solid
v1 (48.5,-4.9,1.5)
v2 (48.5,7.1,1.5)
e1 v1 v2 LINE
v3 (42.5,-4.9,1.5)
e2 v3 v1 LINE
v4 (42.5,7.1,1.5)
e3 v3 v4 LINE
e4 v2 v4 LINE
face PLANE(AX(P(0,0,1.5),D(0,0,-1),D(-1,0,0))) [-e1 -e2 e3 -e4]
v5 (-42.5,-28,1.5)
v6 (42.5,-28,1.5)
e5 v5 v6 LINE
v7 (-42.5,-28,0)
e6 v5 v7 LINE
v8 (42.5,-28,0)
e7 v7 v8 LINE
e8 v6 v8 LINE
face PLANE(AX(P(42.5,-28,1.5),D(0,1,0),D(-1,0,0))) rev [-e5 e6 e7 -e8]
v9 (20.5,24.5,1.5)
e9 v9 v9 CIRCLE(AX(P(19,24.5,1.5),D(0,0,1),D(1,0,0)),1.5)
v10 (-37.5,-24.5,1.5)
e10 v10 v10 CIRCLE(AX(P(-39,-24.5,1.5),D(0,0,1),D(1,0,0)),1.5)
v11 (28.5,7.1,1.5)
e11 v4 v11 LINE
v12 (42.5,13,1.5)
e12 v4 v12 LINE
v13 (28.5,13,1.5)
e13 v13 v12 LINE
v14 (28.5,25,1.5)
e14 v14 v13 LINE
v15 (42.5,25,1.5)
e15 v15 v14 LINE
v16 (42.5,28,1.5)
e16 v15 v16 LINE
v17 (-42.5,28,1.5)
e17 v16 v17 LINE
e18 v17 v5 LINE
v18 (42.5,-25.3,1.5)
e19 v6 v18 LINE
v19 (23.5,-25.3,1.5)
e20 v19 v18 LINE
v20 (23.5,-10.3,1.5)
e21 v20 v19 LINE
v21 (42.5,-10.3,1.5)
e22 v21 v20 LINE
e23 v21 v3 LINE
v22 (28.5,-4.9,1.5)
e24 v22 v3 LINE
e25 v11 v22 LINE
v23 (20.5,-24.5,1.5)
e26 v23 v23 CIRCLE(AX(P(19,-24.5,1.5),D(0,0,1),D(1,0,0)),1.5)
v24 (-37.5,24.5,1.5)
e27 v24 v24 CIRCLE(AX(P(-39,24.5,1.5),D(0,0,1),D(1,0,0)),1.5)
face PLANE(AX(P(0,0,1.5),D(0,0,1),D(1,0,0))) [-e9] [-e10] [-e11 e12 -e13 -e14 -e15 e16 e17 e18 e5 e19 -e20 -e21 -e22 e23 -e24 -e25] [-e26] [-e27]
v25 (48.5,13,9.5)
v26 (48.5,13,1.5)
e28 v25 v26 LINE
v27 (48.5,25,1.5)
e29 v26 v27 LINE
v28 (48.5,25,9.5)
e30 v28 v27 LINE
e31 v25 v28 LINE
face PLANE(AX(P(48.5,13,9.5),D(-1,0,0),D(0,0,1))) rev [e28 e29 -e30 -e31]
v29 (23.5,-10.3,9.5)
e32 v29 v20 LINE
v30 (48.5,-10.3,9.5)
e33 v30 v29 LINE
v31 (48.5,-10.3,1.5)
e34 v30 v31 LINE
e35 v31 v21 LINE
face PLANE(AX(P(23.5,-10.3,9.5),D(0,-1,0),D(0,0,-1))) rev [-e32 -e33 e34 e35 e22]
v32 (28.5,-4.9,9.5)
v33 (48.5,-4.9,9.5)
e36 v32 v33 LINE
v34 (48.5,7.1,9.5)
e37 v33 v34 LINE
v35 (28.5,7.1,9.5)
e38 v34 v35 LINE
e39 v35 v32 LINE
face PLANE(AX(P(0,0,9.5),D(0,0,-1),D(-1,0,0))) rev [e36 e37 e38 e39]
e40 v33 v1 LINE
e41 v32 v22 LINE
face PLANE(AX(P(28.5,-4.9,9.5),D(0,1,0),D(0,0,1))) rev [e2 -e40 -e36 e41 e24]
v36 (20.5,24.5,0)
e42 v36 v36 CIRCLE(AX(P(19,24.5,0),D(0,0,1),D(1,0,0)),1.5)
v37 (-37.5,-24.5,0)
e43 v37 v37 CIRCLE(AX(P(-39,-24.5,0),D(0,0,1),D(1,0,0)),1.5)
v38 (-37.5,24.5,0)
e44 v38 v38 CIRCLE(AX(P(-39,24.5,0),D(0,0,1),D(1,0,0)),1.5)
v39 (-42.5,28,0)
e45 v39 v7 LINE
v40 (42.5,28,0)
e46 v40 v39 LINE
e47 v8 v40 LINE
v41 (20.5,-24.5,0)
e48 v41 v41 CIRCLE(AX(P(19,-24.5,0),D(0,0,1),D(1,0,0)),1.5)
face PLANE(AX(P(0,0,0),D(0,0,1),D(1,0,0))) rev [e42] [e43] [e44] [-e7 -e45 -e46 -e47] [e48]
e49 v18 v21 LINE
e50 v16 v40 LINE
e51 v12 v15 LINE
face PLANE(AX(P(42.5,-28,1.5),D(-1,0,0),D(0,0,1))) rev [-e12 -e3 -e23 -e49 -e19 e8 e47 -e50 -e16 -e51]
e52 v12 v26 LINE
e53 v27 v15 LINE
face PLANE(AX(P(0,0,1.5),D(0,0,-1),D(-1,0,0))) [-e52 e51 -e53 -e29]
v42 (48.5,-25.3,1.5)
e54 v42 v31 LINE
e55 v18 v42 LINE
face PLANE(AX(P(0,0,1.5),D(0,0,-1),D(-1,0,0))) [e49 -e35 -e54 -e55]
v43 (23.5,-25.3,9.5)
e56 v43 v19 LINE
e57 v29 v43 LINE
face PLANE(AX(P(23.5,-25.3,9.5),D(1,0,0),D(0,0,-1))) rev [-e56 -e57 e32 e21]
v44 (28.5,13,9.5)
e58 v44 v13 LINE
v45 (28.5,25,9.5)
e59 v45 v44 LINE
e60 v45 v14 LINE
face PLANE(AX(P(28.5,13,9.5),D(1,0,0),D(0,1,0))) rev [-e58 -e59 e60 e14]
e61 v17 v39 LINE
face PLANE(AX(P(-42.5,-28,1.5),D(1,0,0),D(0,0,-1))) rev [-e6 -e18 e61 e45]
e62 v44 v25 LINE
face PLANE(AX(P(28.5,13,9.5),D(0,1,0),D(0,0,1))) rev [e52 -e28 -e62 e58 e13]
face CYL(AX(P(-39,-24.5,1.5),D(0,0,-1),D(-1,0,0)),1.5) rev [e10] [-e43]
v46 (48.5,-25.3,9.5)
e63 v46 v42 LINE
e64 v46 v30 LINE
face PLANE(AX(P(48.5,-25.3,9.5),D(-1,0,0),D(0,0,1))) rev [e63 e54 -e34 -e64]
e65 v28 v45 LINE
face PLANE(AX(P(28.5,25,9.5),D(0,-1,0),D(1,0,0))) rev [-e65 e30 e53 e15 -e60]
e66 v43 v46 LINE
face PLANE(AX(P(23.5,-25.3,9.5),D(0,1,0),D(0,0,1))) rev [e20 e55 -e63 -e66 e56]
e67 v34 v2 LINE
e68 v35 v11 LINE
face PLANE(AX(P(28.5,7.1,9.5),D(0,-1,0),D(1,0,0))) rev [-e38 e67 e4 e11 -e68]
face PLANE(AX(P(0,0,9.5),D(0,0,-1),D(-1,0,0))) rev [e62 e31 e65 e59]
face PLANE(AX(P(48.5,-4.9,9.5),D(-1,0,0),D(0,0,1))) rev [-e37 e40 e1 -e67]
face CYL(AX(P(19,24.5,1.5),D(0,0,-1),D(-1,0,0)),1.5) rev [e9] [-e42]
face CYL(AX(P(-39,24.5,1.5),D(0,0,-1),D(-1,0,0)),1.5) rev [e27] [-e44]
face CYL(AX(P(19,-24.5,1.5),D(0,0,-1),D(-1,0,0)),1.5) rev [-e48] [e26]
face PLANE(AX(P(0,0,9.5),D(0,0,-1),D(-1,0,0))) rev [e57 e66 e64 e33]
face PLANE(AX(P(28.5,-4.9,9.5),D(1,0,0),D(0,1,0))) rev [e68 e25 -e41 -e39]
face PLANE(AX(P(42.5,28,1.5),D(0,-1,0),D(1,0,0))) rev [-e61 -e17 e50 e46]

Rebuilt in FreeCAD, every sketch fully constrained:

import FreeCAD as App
import Part
import Sketcher
from FreeCAD import Vector


def add_polygon(sketch, points):
    """Adds a closed chain of lines whose ends are joined by coincident constraints."""
    first, n = sketch.GeometryCount, len(points)
    for a, b in zip(points, points[1:] + points[:1]):
        sketch.addGeometry(Part.LineSegment(App.Vector(*a, 0), App.Vector(*b, 0)), False)
    for i in range(n):
        sketch.addConstraint(Sketcher.Constraint("Coincident", first + i, 2, first + (i + 1) % n, 1))

doc = App.newDocument("Part")
body = doc.addObject("PartDesign::Body", "Body")

sketch1 = body.newObject("Sketcher::SketchObject", "Sketch")
sketch1.AttachmentSupport = (doc.getObject("XY_Plane"), [""])
sketch1.MapMode = "FlatFace"
add_polygon(sketch1, [(-42.5, 28), (-42.5, -28), (42.5, -28), (42.5, 28)])
sketch1.addGeometry(Part.Circle(Vector(-39, -24.5, 0), Vector(0, 0, 1), 1.5), False)
sketch1.addGeometry(Part.Circle(Vector(19, -24.5, 0), Vector(0, 0, 1), 1.5), False)
sketch1.addGeometry(Part.Circle(Vector(-39, 24.5, 0), Vector(0, 0, 1), 1.5), False)
sketch1.addGeometry(Part.Circle(Vector(19, 24.5, 0), Vector(0, 0, 1), 1.5), False)
sketch1.addConstraint(Sketcher.Constraint("Vertical", 0))
sketch1.addConstraint(Sketcher.Constraint("Horizontal", 1))
sketch1.addConstraint(Sketcher.Constraint("Vertical", 2))
sketch1.addConstraint(Sketcher.Constraint("Horizontal", 3))
sketch1.addConstraint(Sketcher.Constraint("Equal", 4, 5))
sketch1.addConstraint(Sketcher.Constraint("Equal", 5, 6))
sketch1.addConstraint(Sketcher.Constraint("Equal", 6, 7))
sketch1.addConstraint(Sketcher.Constraint("Symmetric", 0, 2, 2, 2, -1, 1))
sketch1.addConstraint(Sketcher.Constraint("Symmetric", 4, 3, 6, 3, -1))
sketch1.addConstraint(Sketcher.Constraint("Symmetric", 5, 3, 7, 3, -1))
sketch1.addConstraint(Sketcher.Constraint("Horizontal", 4, 3, 5, 3))
sketch1.addConstraint(Sketcher.Constraint("Diameter", 4, 3.0))
sketch1.addConstraint(Sketcher.Constraint("DistanceX", 1, 1, 1, 2, 85.0))
sketch1.addConstraint(Sketcher.Constraint("DistanceY", 0, 2, 0, 1, 56.0))
sketch1.addConstraint(Sketcher.Constraint("DistanceX", 4, 3, -1, 1, 39.0))
sketch1.addConstraint(Sketcher.Constraint("DistanceX", -1, 1, 5, 3, 19.0))
sketch1.addConstraint(Sketcher.Constraint("DistanceY", 4, 3, 6, 3, 49.0))
pad1 = body.newObject("PartDesign::Pad", "Pad")
pad1.Profile = sketch1
pad1.Length = 1.5

sketch2 = body.newObject("Sketcher::SketchObject", "Sketch001")
sketch2.AttachmentSupport = (doc.getObject("XY_Plane"), [""])
sketch2.MapMode = "FlatFace"
sketch2.AttachmentOffset = App.Placement(Vector(0, 0, 1.5), App.Rotation())
add_polygon(sketch2, [(24, -10), (24, -25), (48, -25), (48, -10)])
add_polygon(sketch2, [(28, 7), (28, -5), (48, -5), (48, 7)])
add_polygon(sketch2, [(28, 25), (28, 13), (48, 13), (48, 25)])
sketch2.addConstraint(Sketcher.Constraint("Vertical", 0))
sketch2.addConstraint(Sketcher.Constraint("Horizontal", 1))
sketch2.addConstraint(Sketcher.Constraint("Vertical", 2))
sketch2.addConstraint(Sketcher.Constraint("Horizontal", 3))
sketch2.addConstraint(Sketcher.Constraint("Vertical", 4))
sketch2.addConstraint(Sketcher.Constraint("Horizontal", 5))
sketch2.addConstraint(Sketcher.Constraint("Vertical", 6))
sketch2.addConstraint(Sketcher.Constraint("Horizontal", 7))
sketch2.addConstraint(Sketcher.Constraint("Vertical", 8))
sketch2.addConstraint(Sketcher.Constraint("Horizontal", 9))
sketch2.addConstraint(Sketcher.Constraint("Vertical", 10))
sketch2.addConstraint(Sketcher.Constraint("Horizontal", 11))
sketch2.addConstraint(Sketcher.Constraint("Vertical", 2, 2, 5, 2))
sketch2.addConstraint(Sketcher.Constraint("Vertical", 7, 2, 8, 2))
sketch2.addConstraint(Sketcher.Constraint("Vertical", 6, 2, 9, 2))
sketch2.addConstraint(Sketcher.Constraint("Equal", 6, 8))
sketch2.addConstraint(Sketcher.Constraint("DistanceX", 1, 1, 1, 2, 25.0))
sketch2.addConstraint(Sketcher.Constraint("DistanceX", 5, 1, 5, 2, 20.0))
sketch2.addConstraint(Sketcher.Constraint("DistanceY", 0, 2, 0, 1, 15.0))
sketch2.addConstraint(Sketcher.Constraint("DistanceY", 4, 2, 4, 1, 12.0))
sketch2.addConstraint(Sketcher.Constraint("DistanceY", -1, 1, 8, 2, 13.0))
sketch2.addConstraint(Sketcher.Constraint("DistanceX", -1, 1, 0, 2, 23.5))
sketch2.addConstraint(Sketcher.Constraint("DistanceY", 0, 2, -1, 1, 25.3))
sketch2.addConstraint(Sketcher.Constraint("DistanceY", 4, 2, -1, 1, 4.9))
pad2 = body.newObject("PartDesign::Pad", "Pad001")
pad2.Profile = sketch2
pad2.Length = 8

doc.recompute()
